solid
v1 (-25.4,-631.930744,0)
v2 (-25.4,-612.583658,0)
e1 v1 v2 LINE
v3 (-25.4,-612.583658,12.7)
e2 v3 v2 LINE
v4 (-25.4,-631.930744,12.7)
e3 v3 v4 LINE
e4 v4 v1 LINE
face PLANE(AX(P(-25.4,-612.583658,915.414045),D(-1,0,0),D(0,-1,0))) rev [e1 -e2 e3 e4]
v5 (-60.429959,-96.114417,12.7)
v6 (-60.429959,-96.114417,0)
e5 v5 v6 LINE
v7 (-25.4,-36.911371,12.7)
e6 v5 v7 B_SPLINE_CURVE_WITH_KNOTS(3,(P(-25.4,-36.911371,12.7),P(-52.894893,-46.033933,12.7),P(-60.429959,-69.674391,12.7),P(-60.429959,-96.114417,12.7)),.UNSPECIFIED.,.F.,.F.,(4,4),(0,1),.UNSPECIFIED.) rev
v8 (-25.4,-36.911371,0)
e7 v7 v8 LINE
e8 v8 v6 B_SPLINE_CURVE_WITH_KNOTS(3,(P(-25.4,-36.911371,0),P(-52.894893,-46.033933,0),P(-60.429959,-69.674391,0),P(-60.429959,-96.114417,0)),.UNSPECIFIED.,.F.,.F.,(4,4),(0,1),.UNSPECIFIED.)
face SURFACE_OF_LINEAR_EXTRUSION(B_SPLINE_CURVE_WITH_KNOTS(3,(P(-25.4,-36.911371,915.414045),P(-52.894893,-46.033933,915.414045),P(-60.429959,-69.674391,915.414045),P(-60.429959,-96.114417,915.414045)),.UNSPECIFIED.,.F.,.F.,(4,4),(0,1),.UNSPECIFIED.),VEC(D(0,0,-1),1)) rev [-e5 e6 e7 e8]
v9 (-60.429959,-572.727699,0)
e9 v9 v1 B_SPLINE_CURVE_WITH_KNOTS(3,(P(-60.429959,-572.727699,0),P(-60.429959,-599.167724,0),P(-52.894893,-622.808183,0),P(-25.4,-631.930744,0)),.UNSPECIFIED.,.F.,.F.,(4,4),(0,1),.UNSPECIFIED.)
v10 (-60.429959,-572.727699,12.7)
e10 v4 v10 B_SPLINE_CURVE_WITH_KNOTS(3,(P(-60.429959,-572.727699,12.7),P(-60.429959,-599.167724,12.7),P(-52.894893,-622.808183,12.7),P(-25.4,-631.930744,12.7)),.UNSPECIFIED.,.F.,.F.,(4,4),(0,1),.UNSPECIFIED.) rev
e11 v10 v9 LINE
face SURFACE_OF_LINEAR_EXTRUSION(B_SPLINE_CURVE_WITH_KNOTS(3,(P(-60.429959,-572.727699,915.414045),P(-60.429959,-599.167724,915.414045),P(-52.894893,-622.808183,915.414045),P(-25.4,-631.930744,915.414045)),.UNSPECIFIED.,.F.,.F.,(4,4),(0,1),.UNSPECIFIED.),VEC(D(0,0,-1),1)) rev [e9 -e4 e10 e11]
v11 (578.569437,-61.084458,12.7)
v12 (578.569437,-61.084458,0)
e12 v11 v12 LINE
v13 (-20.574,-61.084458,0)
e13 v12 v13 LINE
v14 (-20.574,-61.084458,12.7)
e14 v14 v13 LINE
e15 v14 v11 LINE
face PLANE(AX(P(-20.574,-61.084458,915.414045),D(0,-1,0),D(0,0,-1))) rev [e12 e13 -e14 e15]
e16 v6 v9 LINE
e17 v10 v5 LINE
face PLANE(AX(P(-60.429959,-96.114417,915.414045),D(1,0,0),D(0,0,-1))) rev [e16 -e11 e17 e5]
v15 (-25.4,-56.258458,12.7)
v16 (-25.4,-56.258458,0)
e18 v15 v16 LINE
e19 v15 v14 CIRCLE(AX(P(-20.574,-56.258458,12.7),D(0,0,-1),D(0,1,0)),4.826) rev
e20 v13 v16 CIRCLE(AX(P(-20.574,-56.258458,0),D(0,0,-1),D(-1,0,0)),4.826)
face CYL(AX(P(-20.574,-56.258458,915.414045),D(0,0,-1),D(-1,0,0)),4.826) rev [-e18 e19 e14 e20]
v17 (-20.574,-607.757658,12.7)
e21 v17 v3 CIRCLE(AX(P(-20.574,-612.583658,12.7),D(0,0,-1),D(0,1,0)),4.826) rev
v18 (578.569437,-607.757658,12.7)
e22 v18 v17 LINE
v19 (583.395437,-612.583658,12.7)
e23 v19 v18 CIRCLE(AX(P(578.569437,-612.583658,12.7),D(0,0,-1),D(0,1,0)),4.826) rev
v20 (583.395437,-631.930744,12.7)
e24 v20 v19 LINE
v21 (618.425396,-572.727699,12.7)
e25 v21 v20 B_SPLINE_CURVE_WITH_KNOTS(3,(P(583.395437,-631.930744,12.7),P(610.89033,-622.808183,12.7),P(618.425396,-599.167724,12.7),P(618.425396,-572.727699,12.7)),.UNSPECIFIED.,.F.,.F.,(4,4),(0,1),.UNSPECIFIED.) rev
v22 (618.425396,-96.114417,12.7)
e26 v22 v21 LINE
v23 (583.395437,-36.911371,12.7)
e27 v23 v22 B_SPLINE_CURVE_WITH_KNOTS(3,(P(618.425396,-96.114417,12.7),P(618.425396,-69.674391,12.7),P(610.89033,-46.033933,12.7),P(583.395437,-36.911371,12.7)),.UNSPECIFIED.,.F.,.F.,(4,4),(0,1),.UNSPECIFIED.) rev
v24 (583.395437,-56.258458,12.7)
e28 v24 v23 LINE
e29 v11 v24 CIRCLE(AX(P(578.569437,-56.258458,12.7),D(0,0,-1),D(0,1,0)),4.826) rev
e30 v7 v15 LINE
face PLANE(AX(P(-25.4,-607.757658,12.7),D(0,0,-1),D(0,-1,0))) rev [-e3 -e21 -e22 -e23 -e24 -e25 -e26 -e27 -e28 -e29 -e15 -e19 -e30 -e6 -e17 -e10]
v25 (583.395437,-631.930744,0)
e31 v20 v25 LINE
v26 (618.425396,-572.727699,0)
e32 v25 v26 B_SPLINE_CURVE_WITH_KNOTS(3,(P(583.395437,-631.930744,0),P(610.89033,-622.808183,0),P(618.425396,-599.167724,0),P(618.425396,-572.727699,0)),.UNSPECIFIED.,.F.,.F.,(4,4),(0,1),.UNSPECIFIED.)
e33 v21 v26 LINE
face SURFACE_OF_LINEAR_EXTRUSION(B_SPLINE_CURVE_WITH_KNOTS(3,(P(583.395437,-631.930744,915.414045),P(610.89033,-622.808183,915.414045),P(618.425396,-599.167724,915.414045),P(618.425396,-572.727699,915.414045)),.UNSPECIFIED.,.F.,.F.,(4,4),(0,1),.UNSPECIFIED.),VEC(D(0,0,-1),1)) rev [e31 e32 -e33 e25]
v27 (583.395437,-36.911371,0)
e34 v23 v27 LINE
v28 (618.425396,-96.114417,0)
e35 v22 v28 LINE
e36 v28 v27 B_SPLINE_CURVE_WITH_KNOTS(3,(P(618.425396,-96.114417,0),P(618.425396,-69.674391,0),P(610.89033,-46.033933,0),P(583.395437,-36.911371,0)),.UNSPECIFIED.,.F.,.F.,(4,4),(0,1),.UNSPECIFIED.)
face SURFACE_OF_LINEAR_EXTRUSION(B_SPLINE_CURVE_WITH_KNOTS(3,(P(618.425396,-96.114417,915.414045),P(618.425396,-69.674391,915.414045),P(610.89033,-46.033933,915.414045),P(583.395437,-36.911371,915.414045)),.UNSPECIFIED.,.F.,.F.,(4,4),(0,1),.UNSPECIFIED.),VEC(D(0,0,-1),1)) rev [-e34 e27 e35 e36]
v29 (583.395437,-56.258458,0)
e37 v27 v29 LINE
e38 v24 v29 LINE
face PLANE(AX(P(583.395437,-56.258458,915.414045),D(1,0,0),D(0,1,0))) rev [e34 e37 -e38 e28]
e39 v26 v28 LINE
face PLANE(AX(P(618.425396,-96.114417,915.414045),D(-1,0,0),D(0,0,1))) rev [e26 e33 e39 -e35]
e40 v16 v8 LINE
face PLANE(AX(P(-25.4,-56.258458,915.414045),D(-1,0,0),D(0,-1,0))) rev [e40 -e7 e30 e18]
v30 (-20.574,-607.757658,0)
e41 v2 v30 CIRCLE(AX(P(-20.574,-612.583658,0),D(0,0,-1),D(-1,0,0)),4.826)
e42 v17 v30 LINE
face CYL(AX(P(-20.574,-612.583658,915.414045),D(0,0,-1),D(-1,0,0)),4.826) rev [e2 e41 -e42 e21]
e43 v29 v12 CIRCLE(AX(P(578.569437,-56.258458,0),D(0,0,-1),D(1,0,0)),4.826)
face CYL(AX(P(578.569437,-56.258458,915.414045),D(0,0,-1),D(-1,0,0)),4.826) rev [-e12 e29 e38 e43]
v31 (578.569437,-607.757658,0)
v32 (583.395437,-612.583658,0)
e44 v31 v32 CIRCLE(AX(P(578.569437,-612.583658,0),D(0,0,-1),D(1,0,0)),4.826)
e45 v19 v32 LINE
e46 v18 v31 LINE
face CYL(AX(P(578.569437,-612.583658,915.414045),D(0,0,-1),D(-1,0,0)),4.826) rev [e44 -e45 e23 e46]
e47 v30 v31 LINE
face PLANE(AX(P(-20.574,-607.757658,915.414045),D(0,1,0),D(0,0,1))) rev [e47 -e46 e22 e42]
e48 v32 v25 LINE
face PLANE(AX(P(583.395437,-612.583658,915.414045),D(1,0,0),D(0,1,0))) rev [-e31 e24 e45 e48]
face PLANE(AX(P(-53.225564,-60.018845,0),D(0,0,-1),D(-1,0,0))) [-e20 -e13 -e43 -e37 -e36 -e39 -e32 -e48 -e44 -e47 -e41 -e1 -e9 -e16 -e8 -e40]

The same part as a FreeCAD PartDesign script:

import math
import FreeCAD as App
import Part
import Sketcher

V = App.Vector
Q = App.Units.Quantity

doc = App.newDocument("Part")
params = doc.addObject("Spreadsheet::Sheet", "Params")
for row, (alias, value) in enumerate([
    ("sketch1_radius", "0.19 in"),
    ("pad1_length", "0.5 in"),
], start=1):
    params.set(f"A{row}", alias)
    params.set(f"B{row}", "=" + value)
    params.setAlias(f"B{row}", alias)

body = doc.addObject("PartDesign::Body", "Body")

sketch1 = doc.addObject("Sketcher::SketchObject", "Sketch")
body.addObject(sketch1)
sketch1.AttachmentSupport = (doc.XY_Plane, [""])
sketch1.MapMode = "FlatFace"
sketch1.addGeometry(Part.LineSegment(V(578.569437, -61.084458, 0), V(-20.574, -61.084458, 0)), False)
sketch1.addGeometry(Part.ArcOfCircle(Part.Circle(V(-20.574, -56.258458, 0), V(0, 0, 1), 4.826), math.radians(180), math.radians(270)), False)
sketch1.addGeometry(Part.LineSegment(V(-25.4, -56.258458, 0), V(-25.4, -36.911371, 0)), False)
sketch1.addGeometry(Part.BSplineCurve([V(-25.4, -36.911371, 0), V(-52.894893, -46.033933, 0), V(-60.429959, -69.674391, 0), V(-60.429959, -96.114417, 0)], [4, 4], [0, 1], False, 3, [1, 1, 1, 1], False), False)
sketch1.addGeometry(Part.LineSegment(V(-60.429959, -96.114417, 0), V(-60.429959, -572.727699, 0)), False)
sketch1.addGeometry(Part.BSplineCurve([V(-25.4, -631.930744, 0), V(-52.894893, -622.808183, 0), V(-60.429959, -599.167724, 0), V(-60.429959, -572.727699, 0)], [4, 4], [0, 1], False, 3, [1, 1, 1, 1], False), False)
sketch1.addGeometry(Part.LineSegment(V(-25.4, -631.930744, 0), V(-25.4, -612.583658, 0)), False)
sketch1.addGeometry(Part.ArcOfCircle(Part.Circle(V(-20.574, -612.583658, 0), V(0, 0, 1), 4.826), math.radians(90), math.radians(180)), False)
sketch1.addGeometry(Part.LineSegment(V(-20.574, -607.757658, 0), V(578.569437, -607.757658, 0)), False)
sketch1.addGeometry(Part.ArcOfCircle(Part.Circle(V(578.569437, -612.583658, 0), V(0, 0, 1), 4.826), math.radians(0), math.radians(90)), False)
sketch1.addGeometry(Part.LineSegment(V(583.395437, -612.583658, 0), V(583.395437, -631.930744, 0)), False)
sketch1.addGeometry(Part.BSplineCurve([V(583.395437, -631.930744, 0), V(610.89033, -622.808183, 0), V(618.425396, -599.167724, 0), V(618.425396, -572.727699, 0)], [4, 4], [0, 1], False, 3, [1, 1, 1, 1], False), False)
sketch1.addGeometry(Part.LineSegment(V(618.425396, -572.727699, 0), V(618.425396, -96.114417, 0)), False)
sketch1.addGeometry(Part.BSplineCurve([V(583.395437, -36.911371, 0), V(610.89033, -46.033933, 0), V(618.425396, -69.674391, 0), V(618.425396, -96.114417, 0)], [4, 4], [0, 1], False, 3, [1, 1, 1, 1], False), False)
sketch1.addGeometry(Part.LineSegment(V(583.395437, -36.911371, 0), V(583.395437, -56.258458, 0)), False)
sketch1.addGeometry(Part.ArcOfCircle(Part.Circle(V(578.569437, -56.258458, 0), V(0, 0, 1), 4.826), math.radians(-90), math.radians(0)), False)
sketch1.addConstraint(Sketcher.Constraint("Block", 3))
sketch1.addConstraint(Sketcher.Constraint("Block", 5))
sketch1.addConstraint(Sketcher.Constraint("Block", 11))
sketch1.addConstraint(Sketcher.Constraint("Block", 13))
sketch1.addConstraint(Sketcher.Constraint("Tangent", 0, 2, 1, 2))
sketch1.addConstraint(Sketcher.Constraint("Tangent", 1, 1, 2, 1))
sketch1.addConstraint(Sketcher.Constraint("Coincident", 2, 2, 3, 1))
sketch1.addConstraint(Sketcher.Constraint("Coincident", 3, 2, 4, 1))
sketch1.addConstraint(Sketcher.Constraint("Coincident", 4, 2, 5, 2))
sketch1.addConstraint(Sketcher.Constraint("Coincident", 5, 1, 6, 1))
sketch1.addConstraint(Sketcher.Constraint("Tangent", 6, 2, 7, 2))
sketch1.addConstraint(Sketcher.Constraint("Tangent", 7, 1, 8, 1))
sketch1.addConstraint(Sketcher.Constraint("Tangent", 8, 2, 9, 2))
sketch1.addConstraint(Sketcher.Constraint("Tangent", 9, 1, 10, 1))
sketch1.addConstraint(Sketcher.Constraint("Coincident", 10, 2, 11, 1))
sketch1.addConstraint(Sketcher.Constraint("Coincident", 11, 2, 12, 1))
sketch1.addConstraint(Sketcher.Constraint("Coincident", 12, 2, 13, 2))
sketch1.addConstraint(Sketcher.Constraint("Coincident", 13, 1, 14, 1))
sketch1.addConstraint(Sketcher.Constraint("Tangent", 14, 2, 15, 2))
sketch1.addConstraint(Sketcher.Constraint("Tangent", 15, 1, 0, 1))
sketch1.addConstraint(Sketcher.Constraint("Horizontal", 0))
sketch1.addConstraint(Sketcher.Constraint("Vertical", 2))
sketch1.addConstraint(Sketcher.Constraint("Vertical", 6))
sketch1.addConstraint(Sketcher.Constraint("Horizontal", 8))
sketch1.addConstraint(Sketcher.Constraint("Vertical", 10))
sketch1.addConstraint(Sketcher.Constraint("Vertical", 14))
sketch1.addConstraint(Sketcher.Constraint("Equal", 1, 7))
sketch1.addConstraint(Sketcher.Constraint("Equal", 7, 9))
sketch1.addConstraint(Sketcher.Constraint("Equal", 9, 15))
sketch1.addConstraint(Sketcher.Constraint("Equal", 2, 6))
sketch1.addConstraint(Sketcher.Constraint("Radius", 1, Q("0.19 in")))
sketch1.addConstraint(Sketcher.Constraint("DistanceY", 1, 3, -1, 1, Q("2.2148999 in")))
sketch1.setExpression("Constraints[30]", "Params.sketch1_radius")
pad1 = doc.addObject("PartDesign::Pad", "Pad")
body.addObject(pad1)
pad1.Profile = sketch1
pad1.setExpression("Length", "Params.pad1_length")

doc.recompute()
